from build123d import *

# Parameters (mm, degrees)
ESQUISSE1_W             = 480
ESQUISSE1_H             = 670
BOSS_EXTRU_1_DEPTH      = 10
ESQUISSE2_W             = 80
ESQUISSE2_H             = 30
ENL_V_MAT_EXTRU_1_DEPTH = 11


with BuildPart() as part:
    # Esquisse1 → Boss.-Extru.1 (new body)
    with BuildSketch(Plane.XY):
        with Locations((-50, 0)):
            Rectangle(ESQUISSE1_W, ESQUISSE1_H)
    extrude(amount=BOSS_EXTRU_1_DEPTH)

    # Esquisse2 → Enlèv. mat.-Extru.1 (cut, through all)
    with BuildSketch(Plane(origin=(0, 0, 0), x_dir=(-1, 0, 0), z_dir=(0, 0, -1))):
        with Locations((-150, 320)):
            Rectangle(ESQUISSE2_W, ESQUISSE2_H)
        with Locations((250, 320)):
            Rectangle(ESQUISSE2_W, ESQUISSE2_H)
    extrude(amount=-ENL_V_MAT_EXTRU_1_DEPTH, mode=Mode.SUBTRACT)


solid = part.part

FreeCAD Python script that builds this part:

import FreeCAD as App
import Part
import Sketcher
Q = App.Units.Quantity


def add_polygon(sketch, points):
    """Adds a closed chain of lines whose ends are joined by coincident constraints."""
    first, n = sketch.GeometryCount, len(points)
    for a, b in zip(points, points[1:] + points[:1]):
        sketch.addGeometry(Part.LineSegment(App.Vector(*a, 0), App.Vector(*b, 0)), False)
    for i in range(n):
        sketch.addConstraint(Sketcher.Constraint("Coincident", first + i, 2, first + (i + 1) % n, 1))

doc = App.newDocument("Part")
body = doc.addObject("PartDesign::Body", "Body")

sketch1 = body.newObject("Sketcher::SketchObject", "Sketch")
sketch1.AttachmentSupport = (doc.getObject("XY_Plane"), [""])
sketch1.MapMode = "FlatFace"
add_polygon(sketch1, [(-290, 335), (-290, -335), (190, -335), (190, 335)])
sketch1.addConstraint([
    Sketcher.Constraint("Vertical", 0),
    Sketcher.Constraint("Horizontal", 1),
    Sketcher.Constraint("Vertical", 2),
    Sketcher.Constraint("Horizontal", 3),
    Sketcher.Constraint("DistanceX", 1, 1, 1, 2, Q("480 mm")),
    Sketcher.Constraint("DistanceY", 0, 2, 0, 1, Q("670 mm")),
    Sketcher.Constraint("DistanceX", 0, 2, -1, 1, Q("290 mm")),
    Sketcher.Constraint("DistanceY", 0, 2, -1, 1, Q("335 mm")),
])
pad1 = body.newObject("PartDesign::Pad", "Pad")
pad1.Profile = sketch1
pad1.Length = 10

sketch2 = body.newObject("Sketcher::SketchObject", "Sketch001")
sketch2.AttachmentSupport = (doc.getObject("XY_Plane"), [""])
sketch2.MapMode = "FlatFace"
add_polygon(sketch2, [(190, 335), (190, 305), (110, 305), (110, 335)])
add_polygon(sketch2, [(-210, 335), (-210, 305), (-290, 305), (-290, 335)])
sketch2.addConstraint([
    Sketcher.Constraint("Vertical", 0),
    Sketcher.Constraint("Horizontal", 1),
    Sketcher.Constraint("Vertical", 2),
    Sketcher.Constraint("Horizontal", 3),
    Sketcher.Constraint("Vertical", 4),
    Sketcher.Constraint("Horizontal", 5),
    Sketcher.Constraint("Vertical", 6),
    Sketcher.Constraint("Horizontal", 7),
    Sketcher.Constraint("Horizontal", 1, 2, 4, 2),
    Sketcher.Constraint("Horizontal", 3, 2, 6, 2),
    Sketcher.Constraint("Equal", 3, 5),
    Sketcher.Constraint("DistanceX", 1, 2, 1, 1, Q("80 mm")),
    Sketcher.Constraint("DistanceY", 0, 2, 0, 1, Q("30 mm")),
    Sketcher.Constraint("DistanceX", -1, 1, 0, 2, Q("190 mm")),
    Sketcher.Constraint("DistanceY", -1, 1, 0, 2, Q("305 mm")),
    Sketcher.Constraint("DistanceX", 4, 2, -1, 1, Q("210 mm")),
])
pocket1 = body.newObject("PartDesign::Pocket", "Pocket")
pocket1.Profile = sketch2
pocket1.Type = "ThroughAll"
pocket1.Reversed = True

doc.recompute()
